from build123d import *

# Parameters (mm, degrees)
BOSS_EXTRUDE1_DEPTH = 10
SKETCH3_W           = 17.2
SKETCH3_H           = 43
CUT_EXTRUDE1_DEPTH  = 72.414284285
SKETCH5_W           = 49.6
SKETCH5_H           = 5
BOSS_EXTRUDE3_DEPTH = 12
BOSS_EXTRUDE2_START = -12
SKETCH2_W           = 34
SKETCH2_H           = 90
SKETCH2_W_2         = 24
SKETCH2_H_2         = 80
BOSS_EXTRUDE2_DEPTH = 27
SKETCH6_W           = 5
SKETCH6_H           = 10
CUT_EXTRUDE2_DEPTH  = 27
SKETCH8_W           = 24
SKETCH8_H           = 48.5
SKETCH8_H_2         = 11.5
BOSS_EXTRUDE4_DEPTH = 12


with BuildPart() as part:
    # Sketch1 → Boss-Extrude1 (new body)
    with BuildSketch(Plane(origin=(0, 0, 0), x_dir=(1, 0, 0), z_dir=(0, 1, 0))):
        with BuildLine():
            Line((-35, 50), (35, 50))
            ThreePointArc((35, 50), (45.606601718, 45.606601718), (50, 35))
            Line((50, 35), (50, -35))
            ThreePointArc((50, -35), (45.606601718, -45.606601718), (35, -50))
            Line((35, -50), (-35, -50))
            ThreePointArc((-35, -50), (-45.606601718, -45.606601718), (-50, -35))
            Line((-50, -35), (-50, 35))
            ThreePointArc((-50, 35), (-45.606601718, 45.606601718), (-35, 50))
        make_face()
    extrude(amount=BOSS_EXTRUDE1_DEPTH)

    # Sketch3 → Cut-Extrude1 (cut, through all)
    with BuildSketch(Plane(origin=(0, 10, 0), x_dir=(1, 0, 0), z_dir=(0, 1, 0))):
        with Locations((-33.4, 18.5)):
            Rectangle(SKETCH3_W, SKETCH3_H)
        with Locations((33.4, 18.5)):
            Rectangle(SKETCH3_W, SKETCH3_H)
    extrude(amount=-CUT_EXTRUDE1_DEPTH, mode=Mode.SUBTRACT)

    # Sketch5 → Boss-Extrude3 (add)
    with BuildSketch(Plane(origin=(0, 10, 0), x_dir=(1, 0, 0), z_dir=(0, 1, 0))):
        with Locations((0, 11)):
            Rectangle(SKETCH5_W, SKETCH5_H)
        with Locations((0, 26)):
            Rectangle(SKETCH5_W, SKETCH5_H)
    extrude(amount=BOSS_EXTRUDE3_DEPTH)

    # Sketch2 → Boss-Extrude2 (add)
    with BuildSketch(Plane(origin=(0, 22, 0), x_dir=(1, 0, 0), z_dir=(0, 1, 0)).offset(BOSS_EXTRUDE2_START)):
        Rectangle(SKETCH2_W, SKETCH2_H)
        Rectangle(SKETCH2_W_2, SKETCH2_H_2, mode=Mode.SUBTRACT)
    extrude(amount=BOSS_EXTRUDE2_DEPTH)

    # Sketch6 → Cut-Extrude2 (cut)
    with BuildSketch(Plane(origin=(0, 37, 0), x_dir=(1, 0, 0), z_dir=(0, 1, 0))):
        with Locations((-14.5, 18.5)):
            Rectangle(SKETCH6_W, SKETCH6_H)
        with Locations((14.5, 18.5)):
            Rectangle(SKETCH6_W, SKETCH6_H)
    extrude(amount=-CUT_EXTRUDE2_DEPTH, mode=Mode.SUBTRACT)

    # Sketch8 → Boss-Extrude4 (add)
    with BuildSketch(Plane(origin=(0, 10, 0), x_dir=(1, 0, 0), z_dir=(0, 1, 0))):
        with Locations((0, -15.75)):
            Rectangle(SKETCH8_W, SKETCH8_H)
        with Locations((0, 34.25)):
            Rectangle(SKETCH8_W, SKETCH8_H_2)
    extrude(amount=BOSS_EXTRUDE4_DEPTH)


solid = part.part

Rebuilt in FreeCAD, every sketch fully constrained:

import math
import FreeCAD as App
import Part
import Sketcher

V = App.Vector

doc = App.newDocument("Part")
params = doc.addObject("Spreadsheet::Sheet", "Params")
for row, (alias, value) in enumerate([
    ("sketch1_radius", "15 mm"),
    ("sketch1_width", "70 mm"),
    ("pad1_length", "10 mm"),
    ("sketch2_height", "43 mm"),
    ("sketch2_width", "17.2 mm"),
    ("sketch3_height", "5 mm"),
    ("sketch3_width", "49.6 mm"),
    ("pad2_length", "12 mm"),
    ("sketch4_width", "34 mm"),
    ("sketch4_width2", "24 mm"),
    ("sketch4_height", "90 mm"),
    ("sketch4_height2", "80 mm"),
    ("pad3_length", "27 mm"),
    ("sketch5_width", "5 mm"),
    ("sketch5_height", "10 mm"),
    ("pocket2_length", "27 mm"),
    ("sketch6_width", "24 mm"),
    ("sketch6_height", "48.5 mm"),
    ("sketch6_height2", "11.5 mm"),
    ("pad4_length", "12 mm"),
], start=1):
    params.set(f"A{row}", alias)
    params.set(f"B{row}", "=" + value)
    params.setAlias(f"B{row}", alias)

body = doc.addObject("PartDesign::Body", "Body")

# Sketch on XZ plane
sketch1 = body.newObject("Sketcher::SketchObject", "Sketch")
sketch1.AttachmentSupport = (doc.getObject("XZ_Plane"), [""])
sketch1.MapMode = "FlatFace"
sketch1.addGeometry(Part.LineSegment(V(35, -50, 0), V(-35, -50, 0)), False)
sketch1.addGeometry(Part.ArcOfCircle(Part.Circle(V(-35, -35, 0), V(0, 0, 1), 15), math.radians(180), math.radians(270)), False)
sketch1.addGeometry(Part.LineSegment(V(-50, -35, 0), V(-50, 35, 0)), False)
sketch1.addGeometry(Part.ArcOfCircle(Part.Circle(V(-35, 35, 0), V(0, 0, 1), 15), math.radians(90), math.radians(180)), False)
sketch1.addGeometry(Part.LineSegment(V(-35, 50, 0), V(35, 50, 0)), False)
sketch1.addGeometry(Part.ArcOfCircle(Part.Circle(V(35, 35, 0), V(0, 0, 1), 15), math.radians(0), math.radians(90)), False)
sketch1.addGeometry(Part.LineSegment(V(50, 35, 0), V(50, -35, 0)), False)
sketch1.addGeometry(Part.ArcOfCircle(Part.Circle(V(35, -35, 0), V(0, 0, 1), 15), math.radians(-90), math.radians(0)), False)
sketch1.addConstraint(Sketcher.Constraint("Tangent", 0, 2, 1, 2))
sketch1.addConstraint(Sketcher.Constraint("Tangent", 1, 1, 2, 1))
sketch1.addConstraint(Sketcher.Constraint("Tangent", 2, 2, 3, 2))
sketch1.addConstraint(Sketcher.Constraint("Tangent", 3, 1, 4, 1))
sketch1.addConstraint(Sketcher.Constraint("Tangent", 4, 2, 5, 2))
sketch1.addConstraint(Sketcher.Constraint("Tangent", 5, 1, 6, 1))
sketch1.addConstraint(Sketcher.Constraint("Tangent", 6, 2, 7, 2))
sketch1.addConstraint(Sketcher.Constraint("Tangent", 7, 1, 0, 1))
sketch1.addConstraint(Sketcher.Constraint("Horizontal", 0))
sketch1.addConstraint(Sketcher.Constraint("Vertical", 2))
sketch1.addConstraint(Sketcher.Constraint("Horizontal", 4))
sketch1.addConstraint(Sketcher.Constraint("Vertical", 6))
sketch1.addConstraint(Sketcher.Constraint("Equal", 1, 3))
sketch1.addConstraint(Sketcher.Constraint("Equal", 3, 5))
sketch1.addConstraint(Sketcher.Constraint("Equal", 5, 7))
sketch1.addConstraint(Sketcher.Constraint("Symmetric", 1, 3, 5, 3, -1, 1))
sketch1.addConstraint(Sketcher.Constraint("Equal", 4, 2))
sketch1.addConstraint(Sketcher.Constraint("Radius", 1, 15.0))
sketch1.addConstraint(Sketcher.Constraint("DistanceX", 0, 2, 0, 1, 70.0))
sketch1.setExpression("Constraints[17]", "Params.sketch1_radius")
sketch1.setExpression("Constraints[18]", "Params.sketch1_width")
pad1 = body.newObject("PartDesign::Pad", "Pad")
pad1.Profile = sketch1
pad1.setExpression("Length", "Params.pad1_length")
pad1.Reversed = True

# Sketch on XZ plane
sketch2 = body.newObject("Sketcher::SketchObject", "Sketch001")
sketch2.AttachmentSupport = (doc.getObject("XZ_Plane"), [""])
sketch2.MapMode = "FlatFace"
sketch2.AttachmentOffset = App.Placement(V(0, 0, -10), App.Rotation())
sketch2.addGeometry(Part.LineSegment(V(-42, -40, 0), V(-42, 3, 0)), False)
sketch2.addGeometry(Part.LineSegment(V(-42, 3, 0), V(-25, 3, 0)), False)
sketch2.addGeometry(Part.LineSegment(V(-25, 3, 0), V(-25, -40, 0)), False)
sketch2.addGeometry(Part.LineSegment(V(-25, -40, 0), V(-42, -40, 0)), False)
sketch2.addGeometry(Part.LineSegment(V(25, -40, 0), V(25, 3, 0)), False)
sketch2.addGeometry(Part.LineSegment(V(25, 3, 0), V(42, 3, 0)), False)
sketch2.addGeometry(Part.LineSegment(V(42, 3, 0), V(42, -40, 0)), False)
sketch2.addGeometry(Part.LineSegment(V(42, -40, 0), V(25, -40, 0)), False)
sketch2.addConstraint(Sketcher.Constraint("Coincident", 0, 2, 1, 1))
sketch2.addConstraint(Sketcher.Constraint("Coincident", 1, 2, 2, 1))
sketch2.addConstraint(Sketcher.Constraint("Coincident", 2, 2, 3, 1))
sketch2.addConstraint(Sketcher.Constraint("Coincident", 3, 2, 0, 1))
sketch2.addConstraint(Sketcher.Constraint("Coincident", 4, 2, 5, 1))
sketch2.addConstraint(Sketcher.Constraint("Coincident", 5, 2, 6, 1))
sketch2.addConstraint(Sketcher.Constraint("Coincident", 6, 2, 7, 1))
sketch2.addConstraint(Sketcher.Constraint("Coincident", 7, 2, 4, 1))
sketch2.addConstraint(Sketcher.Constraint("Vertical", 0))
sketch2.addConstraint(Sketcher.Constraint("Horizontal", 1))
sketch2.addConstraint(Sketcher.Constraint("Vertical", 2))
sketch2.addConstraint(Sketcher.Constraint("Horizontal", 3))
sketch2.addConstraint(Sketcher.Constraint("Vertical", 4))
sketch2.addConstraint(Sketcher.Constraint("Horizontal", 5))
sketch2.addConstraint(Sketcher.Constraint("Vertical", 6))
sketch2.addConstraint(Sketcher.Constraint("Horizontal", 7))
sketch2.addConstraint(Sketcher.Constraint("Symmetric", 1, 2, 4, 2, -2))
sketch2.addConstraint(Sketcher.Constraint("Symmetric", 3, 2, 6, 2, -2))
sketch2.addConstraint(Sketcher.Constraint("DistanceY", 0, 1, 0, 2, 43.0))
sketch2.addConstraint(Sketcher.Constraint("DistanceX", 1, 1, 1, 2, 17.2))
sketch2.addConstraint(Sketcher.Constraint("DistanceX", 0, 2, -1, 1, 42.0))
sketch2.addConstraint(Sketcher.Constraint("DistanceY", -1, 1, 0, 2, 3.0))
sketch2.setExpression("Constraints[18]", "Params.sketch2_height")
sketch2.setExpression("Constraints[19]", "Params.sketch2_width")
pocket1 = body.newObject("PartDesign::Pocket", "Pocket")
pocket1.Profile = sketch2
pocket1.Type = "ThroughAll"
pocket1.Reversed = True

# Sketch on XZ plane
sketch3 = body.newObject("Sketcher::SketchObject", "Sketch002")
sketch3.AttachmentSupport = (doc.getObject("XZ_Plane"), [""])
sketch3.MapMode = "FlatFace"
sketch3.AttachmentOffset = App.Placement(V(0, 0, -10), App.Rotation())
sketch3.addGeometry(Part.LineSegment(V(-25, -14, 0), V(-25, -8, 0)), False)
sketch3.addGeometry(Part.LineSegment(V(-25, -8, 0), V(25, -8, 0)), False)
sketch3.addGeometry(Part.LineSegment(V(25, -8, 0), V(25, -14, 0)), False)
sketch3.addGeometry(Part.LineSegment(V(25, -14, 0), V(-25, -14, 0)), False)
sketch3.addGeometry(Part.LineSegment(V(-25, -28, 0), V(-25, -24, 0)), False)
sketch3.addGeometry(Part.LineSegment(V(-25, -24, 0), V(25, -24, 0)), False)
sketch3.addGeometry(Part.LineSegment(V(25, -24, 0), V(25, -28, 0)), False)
sketch3.addGeometry(Part.LineSegment(V(25, -28, 0), V(-25, -28, 0)), False)
sketch3.addConstraint(Sketcher.Constraint("Coincident", 0, 2, 1, 1))
sketch3.addConstraint(Sketcher.Constraint("Coincident", 1, 2, 2, 1))
sketch3.addConstraint(Sketcher.Constraint("Coincident", 2, 2, 3, 1))
sketch3.addConstraint(Sketcher.Constraint("Coincident", 3, 2, 0, 1))
sketch3.addConstraint(Sketcher.Constraint("Coincident", 4, 2, 5, 1))
sketch3.addConstraint(Sketcher.Constraint("Coincident", 5, 2, 6, 1))
sketch3.addConstraint(Sketcher.Constraint("Coincident", 6, 2, 7, 1))
sketch3.addConstraint(Sketcher.Constraint("Coincident", 7, 2, 4, 1))
sketch3.addConstraint(Sketcher.Constraint("Vertical", 0))
sketch3.addConstraint(Sketcher.Constraint("Horizontal", 1))
sketch3.addConstraint(Sketcher.Constraint("Vertical", 2))
sketch3.addConstraint(Sketcher.Constraint("Horizontal", 3))
sketch3.addConstraint(Sketcher.Constraint("Vertical", 4))
sketch3.addConstraint(Sketcher.Constraint("Horizontal", 5))
sketch3.addConstraint(Sketcher.Constraint("Vertical", 6))
sketch3.addConstraint(Sketcher.Constraint("Horizontal", 7))
sketch3.addConstraint(Sketcher.Constraint("Vertical", 3, 2, 4, 2))
sketch3.addConstraint(Sketcher.Constraint("Vertical", 2, 2, 5, 2))
sketch3.addConstraint(Sketcher.Constraint("Equal", 2, 4))
sketch3.addConstraint(Sketcher.Constraint("DistanceY", 0, 1, 0, 2, 5.0))
sketch3.addConstraint(Sketcher.Constraint("DistanceX", 1, 1, 1, 2, 49.6))
sketch3.addConstraint(Sketcher.Constraint("DistanceY", 4, 2, 3, 2, 10.0))
sketch3.addConstraint(Sketcher.Constraint("DistanceX", 0, 2, -1, 1, 24.8))
sketch3.addConstraint(Sketcher.Constraint("DistanceY", 0, 2, -1, 1, 8.5))
sketch3.setExpression("Constraints[19]", "Params.sketch3_height")
sketch3.setExpression("Constraints[20]", "Params.sketch3_width")
pad2 = body.newObject("PartDesign::Pad", "Pad001")
pad2.Profile = sketch3
pad2.setExpression("Length", "Params.pad2_length")
pad2.Reversed = True

# Sketch on XZ plane
sketch4 = body.newObject("Sketcher::SketchObject", "Sketch003")
sketch4.AttachmentSupport = (doc.getObject("XZ_Plane"), [""])
sketch4.MapMode = "FlatFace"
sketch4.AttachmentOffset = App.Placement(V(0, 0, -10), App.Rotation())
sketch4.addGeometry(Part.LineSegment(V(-17, -45, 0), V(-17, 45, 0)), False)
sketch4.addGeometry(Part.LineSegment(V(-17, 45, 0), V(17, 45, 0)), False)
sketch4.addGeometry(Part.LineSegment(V(17, 45, 0), V(17, -45, 0)), False)
sketch4.addGeometry(Part.LineSegment(V(17, -45, 0), V(-17, -45, 0)), False)
sketch4.addGeometry(Part.LineSegment(V(12, 40, 0), V(-12, 40, 0)), False)
sketch4.addGeometry(Part.LineSegment(V(-12, 40, 0), V(-12, -40, 0)), False)
sketch4.addGeometry(Part.LineSegment(V(-12, -40, 0), V(12, -40, 0)), False)
sketch4.addGeometry(Part.LineSegment(V(12, -40, 0), V(12, 40, 0)), False)
sketch4.addConstraint(Sketcher.Constraint("Coincident", 0, 2, 1, 1))
sketch4.addConstraint(Sketcher.Constraint("Coincident", 1, 2, 2, 1))
sketch4.addConstraint(Sketcher.Constraint("Coincident", 2, 2, 3, 1))
sketch4.addConstraint(Sketcher.Constraint("Coincident", 3, 2, 0, 1))
sketch4.addConstraint(Sketcher.Constraint("Coincident", 4, 2, 5, 1))
sketch4.addConstraint(Sketcher.Constraint("Coincident", 5, 2, 6, 1))
sketch4.addConstraint(Sketcher.Constraint("Coincident", 6, 2, 7, 1))
sketch4.addConstraint(Sketcher.Constraint("Coincident", 7, 2, 4, 1))
sketch4.addConstraint(Sketcher.Constraint("Vertical", 0))
sketch4.addConstraint(Sketcher.Constraint("Horizontal", 1))
sketch4.addConstraint(Sketcher.Constraint("Vertical", 2))
sketch4.addConstraint(Sketcher.Constraint("Horizontal", 3))
sketch4.addConstraint(Sketcher.Constraint("Horizontal", 4))
sketch4.addConstraint(Sketcher.Constraint("Vertical", 5))
sketch4.addConstraint(Sketcher.Constraint("Horizontal", 6))
sketch4.addConstraint(Sketcher.Constraint("Vertical", 7))
sketch4.addConstraint(Sketcher.Constraint("Symmetric", 0, 2, 2, 2, -1, 1))
sketch4.addConstraint(Sketcher.Constraint("Symmetric", 4, 2, 6, 2, -1, 1))
sketch4.addConstraint(Sketcher.Constraint("DistanceX", 1, 1, 1, 2, 34.0))
sketch4.addConstraint(Sketcher.Constraint("DistanceX", 4, 2, 4, 1, 24.0))
sketch4.addConstraint(Sketcher.Constraint("DistanceY", 0, 1, 0, 2, 90.0))
sketch4.addConstraint(Sketcher.Constraint("DistanceY", 5, 2, 5, 1, 80.0))
sketch4.setExpression("Constraints[18]", "Params.sketch4_width")
sketch4.setExpression("Constraints[19]", "Params.sketch4_width2")
sketch4.setExpression("Constraints[20]", "Params.sketch4_height")
sketch4.setExpression("Constraints[21]", "Params.sketch4_height2")
pad3 = body.newObject("PartDesign::Pad", "Pad002")
pad3.Profile = sketch4
pad3.setExpression("Length", "Params.pad3_length")
pad3.Reversed = True

# Sketch on XZ plane
sketch5 = body.newObject("Sketcher::SketchObject", "Sketch004")
sketch5.AttachmentSupport = (doc.getObject("XZ_Plane"), [""])
sketch5.MapMode = "FlatFace"
sketch5.AttachmentOffset = App.Placement(V(0, 0, -37), App.Rotation())
sketch5.addGeometry(Part.LineSegment(V(-17, -24, 0), V(-17, -14, 0)), False)
sketch5.addGeometry(Part.LineSegment(V(-17, -14, 0), V(-12, -14, 0)), False)
sketch5.addGeometry(Part.LineSegment(V(-12, -14, 0), V(-12, -24, 0)), False)
sketch5.addGeometry(Part.LineSegment(V(-12, -24, 0), V(-17, -24, 0)), False)
sketch5.addGeometry(Part.LineSegment(V(12, -24, 0), V(12, -14, 0)), False)
sketch5.addGeometry(Part.LineSegment(V(12, -14, 0), V(17, -14, 0)), False)
sketch5.addGeometry(Part.LineSegment(V(17, -14, 0), V(17, -24, 0)), False)
sketch5.addGeometry(Part.LineSegment(V(17, -24, 0), V(12, -24, 0)), False)
sketch5.addConstraint(Sketcher.Constraint("Coincident", 0, 2, 1, 1))
sketch5.addConstraint(Sketcher.Constraint("Coincident", 1, 2, 2, 1))
sketch5.addConstraint(Sketcher.Constraint("Coincident", 2, 2, 3, 1))
sketch5.addConstraint(Sketcher.Constraint("Coincident", 3, 2, 0, 1))
sketch5.addConstraint(Sketcher.Constraint("Coincident", 4, 2, 5, 1))
sketch5.addConstraint(Sketcher.Constraint("Coincident", 5, 2, 6, 1))
sketch5.addConstraint(Sketcher.Constraint("Coincident", 6, 2, 7, 1))
sketch5.addConstraint(Sketcher.Constraint("Coincident", 7, 2, 4, 1))
sketch5.addConstraint(Sketcher.Constraint("Vertical", 0))
sketch5.addConstraint(Sketcher.Constraint("Horizontal", 1))
sketch5.addConstraint(Sketcher.Constraint("Vertical", 2))
sketch5.addConstraint(Sketcher.Constraint("Horizontal", 3))
sketch5.addConstraint(Sketcher.Constraint("Vertical", 4))
sketch5.addConstraint(Sketcher.Constraint("Horizontal", 5))
sketch5.addConstraint(Sketcher.Constraint("Vertical", 6))
sketch5.addConstraint(Sketcher.Constraint("Horizontal", 7))
sketch5.addConstraint(Sketcher.Constraint("Symmetric", 1, 2, 4, 2, -2))
sketch5.addConstraint(Sketcher.Constraint("Symmetric", 3, 2, 6, 2, -2))
sketch5.addConstraint(Sketcher.Constraint("DistanceX", 1, 1, 1, 2, 5.0))
sketch5.addConstraint(Sketcher.Constraint("DistanceY", 0, 1, 0, 2, 10.0))
sketch5.addConstraint(Sketcher.Constraint("DistanceX", 0, 2, -1, 1, 17.0))
sketch5.addConstraint(Sketcher.Constraint("DistanceY", 0, 2, -1, 1, 13.5))
sketch5.setExpression("Constraints[18]", "Params.sketch5_width")
sketch5.setExpression("Constraints[19]", "Params.sketch5_height")
pocket2 = body.newObject("PartDesign::Pocket", "Pocket001")
pocket2.Profile = sketch5
pocket2.setExpression("Length", "Params.pocket2_length")
pocket2.Reversed = True

# Sketch on XZ plane
sketch6 = body.newObject("Sketcher::SketchObject", "Sketch005")
sketch6.AttachmentSupport = (doc.getObject("XZ_Plane"), [""])
sketch6.MapMode = "FlatFace"
sketch6.AttachmentOffset = App.Placement(V(0, 0, -10), App.Rotation())
sketch6.addGeometry(Part.LineSegment(V(-12, -8, 0), V(-12, 40, 0)), False)
sketch6.addGeometry(Part.LineSegment(V(-12, 40, 0), V(12, 40, 0)), False)
sketch6.addGeometry(Part.LineSegment(V(12, 40, 0), V(12, -8, 0)), False)
sketch6.addGeometry(Part.LineSegment(V(12, -8, 0), V(-12, -8, 0)), False)
sketch6.addGeometry(Part.LineSegment(V(-12, -40, 0), V(-12, -28, 0)), False)
sketch6.addGeometry(Part.LineSegment(V(-12, -28, 0), V(12, -28, 0)), False)
sketch6.addGeometry(Part.LineSegment(V(12, -28, 0), V(12, -40, 0)), False)
sketch6.addGeometry(Part.LineSegment(V(12, -40, 0), V(-12, -40, 0)), False)
sketch6.addConstraint(Sketcher.Constraint("Coincident", 0, 2, 1, 1))
sketch6.addConstraint(Sketcher.Constraint("Coincident", 1, 2, 2, 1))
sketch6.addConstraint(Sketcher.Constraint("Coincident", 2, 2, 3, 1))
sketch6.addConstraint(Sketcher.Constraint("Coincident", 3, 2, 0, 1))
sketch6.addConstraint(Sketcher.Constraint("Coincident", 4, 2, 5, 1))
sketch6.addConstraint(Sketcher.Constraint("Coincident", 5, 2, 6, 1))
sketch6.addConstraint(Sketcher.Constraint("Coincident", 6, 2, 7, 1))
sketch6.addConstraint(Sketcher.Constraint("Coincident", 7, 2, 4, 1))
sketch6.addConstraint(Sketcher.Constraint("Vertical", 0))
sketch6.addConstraint(Sketcher.Constraint("Horizontal", 1))
sketch6.addConstraint(Sketcher.Constraint("Vertical", 2))
sketch6.addConstraint(Sketcher.Constraint("Horizontal", 3))
sketch6.addConstraint(Sketcher.Constraint("Vertical", 4))
sketch6.addConstraint(Sketcher.Constraint("Horizontal", 5))
sketch6.addConstraint(Sketcher.Constraint("Vertical", 6))
sketch6.addConstraint(Sketcher.Constraint("Horizontal", 7))
sketch6.addConstraint(Sketcher.Constraint("Symmetric", 0, 2, 6, 2, -1, 1))
sketch6.addConstraint(Sketcher.Constraint("Vertical", 3, 2, 4, 2))
sketch6.addConstraint(Sketcher.Constraint("Vertical", 2, 2, 5, 2))
sketch6.addConstraint(Sketcher.Constraint("DistanceX", 1, 1, 1, 2, 24.0))
sketch6.addConstraint(Sketcher.Constraint("DistanceY", 0, 1, 0, 2, 48.5))
sketch6.addConstraint(Sketcher.Constraint("DistanceY", 4, 1, 4, 2, 11.5))
sketch6.addConstraint(Sketcher.Constraint("DistanceY", -1, 1, 0, 2, 40.0))
sketch6.setExpression("Constraints[19]", "Params.sketch6_width")
sketch6.setExpression("Constraints[20]", "Params.sketch6_height")
sketch6.setExpression("Constraints[21]", "Params.sketch6_height2")
pad4 = body.newObject("PartDesign::Pad", "Pad003")
pad4.Profile = sketch6
pad4.setExpression("Length", "Params.pad4_length")
pad4.Reversed = True

doc.recompute()
